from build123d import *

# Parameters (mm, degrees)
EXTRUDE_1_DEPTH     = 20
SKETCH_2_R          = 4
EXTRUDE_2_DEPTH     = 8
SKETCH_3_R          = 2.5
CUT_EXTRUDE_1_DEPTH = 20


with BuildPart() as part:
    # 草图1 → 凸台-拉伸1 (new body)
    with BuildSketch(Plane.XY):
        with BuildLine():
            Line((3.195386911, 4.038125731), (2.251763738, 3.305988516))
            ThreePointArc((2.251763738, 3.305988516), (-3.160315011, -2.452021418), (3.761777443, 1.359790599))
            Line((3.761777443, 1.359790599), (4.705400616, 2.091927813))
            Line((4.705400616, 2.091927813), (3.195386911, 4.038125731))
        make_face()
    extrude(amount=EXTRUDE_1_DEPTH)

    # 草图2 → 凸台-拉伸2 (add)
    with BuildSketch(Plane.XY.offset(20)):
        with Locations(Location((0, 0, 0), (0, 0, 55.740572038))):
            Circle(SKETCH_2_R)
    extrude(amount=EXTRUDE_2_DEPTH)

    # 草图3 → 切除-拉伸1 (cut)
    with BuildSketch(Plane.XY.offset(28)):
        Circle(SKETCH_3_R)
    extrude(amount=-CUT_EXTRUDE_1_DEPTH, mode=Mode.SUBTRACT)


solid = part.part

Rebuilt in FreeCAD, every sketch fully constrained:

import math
import FreeCAD as App
import Part
import Sketcher
from FreeCAD import Vector
Q = App.Units.Quantity

doc = App.newDocument("Part")
body = doc.addObject("PartDesign::Body", "Body")

sketch1 = doc.addObject("Sketcher::SketchObject", "Sketch")
body.addObject(sketch1)
sketch1.AttachmentSupport = (doc.XY_Plane, [""])
sketch1.MapMode = "FlatFace"
sketch1.addGeometry(Part.LineSegment(Vector(3.2, 4, 0), Vector(2.3, 3.3, 0)), False)
sketch1.addGeometry(Part.ArcOfCircle(Part.Circle(Vector(0, 0, 0), Vector(0, 0, 1), 4), math.radians(56), math.radians(380)), False)
sketch1.addGeometry(Part.LineSegment(Vector(3.8, 1.4, 0), Vector(4.7, 2.1, 0)), False)
sketch1.addGeometry(Part.LineSegment(Vector(4.7, 2.1, 0), Vector(3.2, 4, 0)), False)
sketch1.addConstraint(Sketcher.Constraint("Coincident", 0, 2, 1, 1))
sketch1.addConstraint(Sketcher.Constraint("Coincident", 1, 2, 2, 1))
sketch1.addConstraint(Sketcher.Constraint("Coincident", 2, 2, 3, 1))
sketch1.addConstraint(Sketcher.Constraint("Coincident", 3, 2, 0, 1))
sketch1.addConstraint(Sketcher.Constraint("Coincident", 1, 3, -1, 1))
sketch1.addConstraint(Sketcher.Constraint("Parallel", 0, 2))
sketch1.addConstraint(Sketcher.Constraint("Perpendicular", 2, 3))
sketch1.addConstraint(Sketcher.Constraint("Equal", 0, 2))
sketch1.addConstraint(Sketcher.Constraint("Radius", 1, Q("4 mm")))
sketch1.addConstraint(Sketcher.Constraint("DistanceX", -1, 1, 2, 2, Q("4.705401 mm")))
sketch1.addConstraint(Sketcher.Constraint("Distance", 0, Q("1.194341 mm")))
sketch1.addConstraint(Sketcher.Constraint("DistanceY", -1, 1, 0, 2, Q("3.305989 mm")))
pad1 = doc.addObject("PartDesign::Pad", "Pad")
body.addObject(pad1)
pad1.Profile = sketch1
pad1.Length = 20

sketch2 = doc.addObject("Sketcher::SketchObject", "Sketch001")
body.addObject(sketch2)
sketch2.AttachmentSupport = (doc.XY_Plane, [""])
sketch2.MapMode = "FlatFace"
sketch2.AttachmentOffset = App.Placement(Vector(0, 0, 20), App.Rotation())
sketch2.addGeometry(Part.Circle(Vector(0, 0, 0), Vector(0, 0, 1), 4), False)
sketch2.addConstraint(Sketcher.Constraint("Coincident", 0, 3, -1, 1))
sketch2.addConstraint(Sketcher.Constraint("Diameter", 0, Q("8 mm")))
pad2 = doc.addObject("PartDesign::Pad", "Pad001")
body.addObject(pad2)
pad2.Profile = sketch2
pad2.Length = 8

sketch3 = doc.addObject("Sketcher::SketchObject", "Sketch002")
body.addObject(sketch3)
sketch3.AttachmentSupport = (doc.XY_Plane, [""])
sketch3.MapMode = "FlatFace"
sketch3.AttachmentOffset = App.Placement(Vector(0, 0, 28), App.Rotation())
sketch3.addGeometry(Part.Circle(Vector(0, 0, 0), Vector(0, 0, 1), 2.5), False)
sketch3.addConstraint(Sketcher.Constraint("Coincident", 0, 3, -1, 1))
sketch3.addConstraint(Sketcher.Constraint("Diameter", 0, Q("5 mm")))
pocket1 = doc.addObject("PartDesign::Pocket", "Pocket")
body.addObject(pocket1)
pocket1.Profile = sketch3
pocket1.Length = 20

doc.recompute()
